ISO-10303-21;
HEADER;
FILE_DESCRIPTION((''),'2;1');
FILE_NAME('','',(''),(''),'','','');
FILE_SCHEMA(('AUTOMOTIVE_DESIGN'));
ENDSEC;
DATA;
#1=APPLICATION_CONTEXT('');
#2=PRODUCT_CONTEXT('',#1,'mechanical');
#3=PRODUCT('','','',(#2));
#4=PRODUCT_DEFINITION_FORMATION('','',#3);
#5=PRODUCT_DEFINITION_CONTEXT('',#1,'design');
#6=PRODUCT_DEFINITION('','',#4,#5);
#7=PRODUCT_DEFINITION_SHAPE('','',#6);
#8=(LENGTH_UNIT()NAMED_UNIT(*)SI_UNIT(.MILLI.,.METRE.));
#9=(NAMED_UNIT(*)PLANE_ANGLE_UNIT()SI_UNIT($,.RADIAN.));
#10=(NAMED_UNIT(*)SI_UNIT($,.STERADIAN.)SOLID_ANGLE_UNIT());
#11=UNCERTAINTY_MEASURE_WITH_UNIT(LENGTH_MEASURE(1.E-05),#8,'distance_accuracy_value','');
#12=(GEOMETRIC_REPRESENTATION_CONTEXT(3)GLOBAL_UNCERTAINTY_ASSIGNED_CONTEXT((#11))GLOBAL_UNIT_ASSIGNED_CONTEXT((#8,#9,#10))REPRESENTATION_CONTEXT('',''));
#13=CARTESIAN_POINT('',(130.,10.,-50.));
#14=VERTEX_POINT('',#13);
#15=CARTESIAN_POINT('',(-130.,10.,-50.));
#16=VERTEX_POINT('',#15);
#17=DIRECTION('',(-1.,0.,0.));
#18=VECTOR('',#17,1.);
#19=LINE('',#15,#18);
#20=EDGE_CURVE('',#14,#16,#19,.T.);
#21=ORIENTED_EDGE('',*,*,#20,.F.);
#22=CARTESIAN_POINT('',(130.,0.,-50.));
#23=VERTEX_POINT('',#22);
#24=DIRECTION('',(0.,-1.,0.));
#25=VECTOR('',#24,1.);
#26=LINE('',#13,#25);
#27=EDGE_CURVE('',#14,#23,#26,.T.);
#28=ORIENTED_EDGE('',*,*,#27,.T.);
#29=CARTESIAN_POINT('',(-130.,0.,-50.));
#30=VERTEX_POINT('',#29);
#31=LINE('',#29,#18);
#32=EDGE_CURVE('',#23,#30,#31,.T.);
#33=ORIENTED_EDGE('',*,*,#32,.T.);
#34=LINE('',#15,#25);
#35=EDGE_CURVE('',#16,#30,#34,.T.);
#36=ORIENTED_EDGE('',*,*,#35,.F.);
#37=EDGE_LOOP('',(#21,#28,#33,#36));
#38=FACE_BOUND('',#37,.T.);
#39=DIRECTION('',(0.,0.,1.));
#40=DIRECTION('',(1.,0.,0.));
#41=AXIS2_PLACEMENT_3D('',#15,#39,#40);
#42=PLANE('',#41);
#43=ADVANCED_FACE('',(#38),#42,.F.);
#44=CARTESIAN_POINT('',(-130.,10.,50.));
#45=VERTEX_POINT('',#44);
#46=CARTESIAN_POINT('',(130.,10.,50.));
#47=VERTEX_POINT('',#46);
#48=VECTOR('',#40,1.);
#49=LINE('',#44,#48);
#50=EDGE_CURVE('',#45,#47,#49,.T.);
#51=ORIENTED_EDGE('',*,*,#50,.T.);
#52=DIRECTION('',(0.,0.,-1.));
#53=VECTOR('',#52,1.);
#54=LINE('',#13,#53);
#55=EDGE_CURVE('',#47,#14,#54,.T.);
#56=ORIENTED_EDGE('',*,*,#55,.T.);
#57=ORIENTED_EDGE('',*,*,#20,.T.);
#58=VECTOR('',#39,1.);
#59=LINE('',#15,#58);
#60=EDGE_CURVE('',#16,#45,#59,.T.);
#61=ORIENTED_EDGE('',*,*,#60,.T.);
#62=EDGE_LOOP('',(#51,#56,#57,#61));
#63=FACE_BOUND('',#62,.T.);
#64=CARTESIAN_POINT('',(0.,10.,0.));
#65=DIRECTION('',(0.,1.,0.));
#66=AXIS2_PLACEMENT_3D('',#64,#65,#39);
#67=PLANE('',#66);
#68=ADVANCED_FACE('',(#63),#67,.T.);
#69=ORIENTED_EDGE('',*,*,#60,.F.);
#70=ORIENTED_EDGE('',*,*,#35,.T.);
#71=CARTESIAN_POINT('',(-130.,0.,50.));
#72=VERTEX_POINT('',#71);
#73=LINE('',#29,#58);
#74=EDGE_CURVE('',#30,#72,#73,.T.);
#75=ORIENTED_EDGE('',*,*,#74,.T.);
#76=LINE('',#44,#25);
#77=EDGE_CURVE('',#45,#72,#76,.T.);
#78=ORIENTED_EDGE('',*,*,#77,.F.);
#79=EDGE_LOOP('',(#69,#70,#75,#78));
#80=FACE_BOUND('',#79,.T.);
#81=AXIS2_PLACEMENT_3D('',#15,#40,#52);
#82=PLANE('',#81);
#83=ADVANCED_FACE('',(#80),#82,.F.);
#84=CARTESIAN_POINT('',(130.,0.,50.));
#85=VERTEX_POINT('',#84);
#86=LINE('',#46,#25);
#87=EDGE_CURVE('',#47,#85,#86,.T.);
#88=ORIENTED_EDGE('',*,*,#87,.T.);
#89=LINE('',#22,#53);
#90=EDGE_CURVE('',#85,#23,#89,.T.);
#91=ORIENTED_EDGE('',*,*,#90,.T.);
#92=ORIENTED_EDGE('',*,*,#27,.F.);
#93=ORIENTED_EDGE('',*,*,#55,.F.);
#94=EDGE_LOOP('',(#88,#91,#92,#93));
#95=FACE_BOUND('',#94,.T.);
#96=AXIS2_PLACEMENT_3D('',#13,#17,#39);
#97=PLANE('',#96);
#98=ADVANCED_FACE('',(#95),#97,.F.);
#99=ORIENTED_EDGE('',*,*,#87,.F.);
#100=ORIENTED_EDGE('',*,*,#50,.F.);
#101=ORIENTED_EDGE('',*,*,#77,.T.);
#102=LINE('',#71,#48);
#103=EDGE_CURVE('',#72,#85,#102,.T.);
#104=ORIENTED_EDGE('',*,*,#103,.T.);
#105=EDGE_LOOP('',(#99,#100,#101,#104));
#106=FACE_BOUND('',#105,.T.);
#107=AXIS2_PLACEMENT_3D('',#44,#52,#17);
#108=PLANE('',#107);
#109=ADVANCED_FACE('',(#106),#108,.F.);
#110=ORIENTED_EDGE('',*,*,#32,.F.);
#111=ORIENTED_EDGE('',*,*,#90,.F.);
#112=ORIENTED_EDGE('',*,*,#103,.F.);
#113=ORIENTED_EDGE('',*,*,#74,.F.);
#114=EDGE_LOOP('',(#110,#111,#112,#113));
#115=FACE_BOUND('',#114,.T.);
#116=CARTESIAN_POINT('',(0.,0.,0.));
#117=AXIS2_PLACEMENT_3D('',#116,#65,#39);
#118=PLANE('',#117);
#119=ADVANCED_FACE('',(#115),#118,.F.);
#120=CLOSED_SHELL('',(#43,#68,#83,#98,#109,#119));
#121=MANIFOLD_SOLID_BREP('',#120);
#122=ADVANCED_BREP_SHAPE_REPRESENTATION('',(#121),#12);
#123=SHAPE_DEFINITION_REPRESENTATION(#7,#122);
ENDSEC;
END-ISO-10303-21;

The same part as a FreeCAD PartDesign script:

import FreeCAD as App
import Part
import Sketcher

V = App.Vector


def add_polygon(sketch, points):
    """Adds a closed chain of lines whose ends are joined by coincident constraints."""
    first, n = sketch.GeometryCount, len(points)
    for a, b in zip(points, points[1:] + points[:1]):
        sketch.addGeometry(Part.LineSegment(App.Vector(*a, 0), App.Vector(*b, 0)), False)
    for i in range(n):
        sketch.addConstraint(Sketcher.Constraint("Coincident", first + i, 2, first + (i + 1) % n, 1))

doc = App.newDocument("Part")
body = doc.addObject("PartDesign::Body", "Body")

# Sketch on XZ plane
sketch1 = body.newObject("Sketcher::SketchObject", "Sketch")
sketch1.AttachmentSupport = (doc.getObject("XZ_Plane"), [""])
sketch1.MapMode = "FlatFace"
add_polygon(sketch1, [(-130, -50), (-130, 50), (130, 50), (130, -50)])  # lines 0-3
sketch1.addConstraint([
    Sketcher.Constraint("Vertical", 0),
    Sketcher.Constraint("Horizontal", 1),
    Sketcher.Constraint("Vertical", 2),
    Sketcher.Constraint("Horizontal", 3),
    Sketcher.Constraint("Symmetric", 0, 2, 2, 2, -1, 1),
    Sketcher.Constraint("DistanceX", 1, 1, 1, 2, 260.0),
    Sketcher.Constraint("DistanceY", 0, 1, 0, 2, 100.0),
])
pad1 = body.newObject("PartDesign::Pad", "Pad")
pad1.Profile = sketch1
pad1.Length = 10
pad1.Reversed = True

doc.recompute()
